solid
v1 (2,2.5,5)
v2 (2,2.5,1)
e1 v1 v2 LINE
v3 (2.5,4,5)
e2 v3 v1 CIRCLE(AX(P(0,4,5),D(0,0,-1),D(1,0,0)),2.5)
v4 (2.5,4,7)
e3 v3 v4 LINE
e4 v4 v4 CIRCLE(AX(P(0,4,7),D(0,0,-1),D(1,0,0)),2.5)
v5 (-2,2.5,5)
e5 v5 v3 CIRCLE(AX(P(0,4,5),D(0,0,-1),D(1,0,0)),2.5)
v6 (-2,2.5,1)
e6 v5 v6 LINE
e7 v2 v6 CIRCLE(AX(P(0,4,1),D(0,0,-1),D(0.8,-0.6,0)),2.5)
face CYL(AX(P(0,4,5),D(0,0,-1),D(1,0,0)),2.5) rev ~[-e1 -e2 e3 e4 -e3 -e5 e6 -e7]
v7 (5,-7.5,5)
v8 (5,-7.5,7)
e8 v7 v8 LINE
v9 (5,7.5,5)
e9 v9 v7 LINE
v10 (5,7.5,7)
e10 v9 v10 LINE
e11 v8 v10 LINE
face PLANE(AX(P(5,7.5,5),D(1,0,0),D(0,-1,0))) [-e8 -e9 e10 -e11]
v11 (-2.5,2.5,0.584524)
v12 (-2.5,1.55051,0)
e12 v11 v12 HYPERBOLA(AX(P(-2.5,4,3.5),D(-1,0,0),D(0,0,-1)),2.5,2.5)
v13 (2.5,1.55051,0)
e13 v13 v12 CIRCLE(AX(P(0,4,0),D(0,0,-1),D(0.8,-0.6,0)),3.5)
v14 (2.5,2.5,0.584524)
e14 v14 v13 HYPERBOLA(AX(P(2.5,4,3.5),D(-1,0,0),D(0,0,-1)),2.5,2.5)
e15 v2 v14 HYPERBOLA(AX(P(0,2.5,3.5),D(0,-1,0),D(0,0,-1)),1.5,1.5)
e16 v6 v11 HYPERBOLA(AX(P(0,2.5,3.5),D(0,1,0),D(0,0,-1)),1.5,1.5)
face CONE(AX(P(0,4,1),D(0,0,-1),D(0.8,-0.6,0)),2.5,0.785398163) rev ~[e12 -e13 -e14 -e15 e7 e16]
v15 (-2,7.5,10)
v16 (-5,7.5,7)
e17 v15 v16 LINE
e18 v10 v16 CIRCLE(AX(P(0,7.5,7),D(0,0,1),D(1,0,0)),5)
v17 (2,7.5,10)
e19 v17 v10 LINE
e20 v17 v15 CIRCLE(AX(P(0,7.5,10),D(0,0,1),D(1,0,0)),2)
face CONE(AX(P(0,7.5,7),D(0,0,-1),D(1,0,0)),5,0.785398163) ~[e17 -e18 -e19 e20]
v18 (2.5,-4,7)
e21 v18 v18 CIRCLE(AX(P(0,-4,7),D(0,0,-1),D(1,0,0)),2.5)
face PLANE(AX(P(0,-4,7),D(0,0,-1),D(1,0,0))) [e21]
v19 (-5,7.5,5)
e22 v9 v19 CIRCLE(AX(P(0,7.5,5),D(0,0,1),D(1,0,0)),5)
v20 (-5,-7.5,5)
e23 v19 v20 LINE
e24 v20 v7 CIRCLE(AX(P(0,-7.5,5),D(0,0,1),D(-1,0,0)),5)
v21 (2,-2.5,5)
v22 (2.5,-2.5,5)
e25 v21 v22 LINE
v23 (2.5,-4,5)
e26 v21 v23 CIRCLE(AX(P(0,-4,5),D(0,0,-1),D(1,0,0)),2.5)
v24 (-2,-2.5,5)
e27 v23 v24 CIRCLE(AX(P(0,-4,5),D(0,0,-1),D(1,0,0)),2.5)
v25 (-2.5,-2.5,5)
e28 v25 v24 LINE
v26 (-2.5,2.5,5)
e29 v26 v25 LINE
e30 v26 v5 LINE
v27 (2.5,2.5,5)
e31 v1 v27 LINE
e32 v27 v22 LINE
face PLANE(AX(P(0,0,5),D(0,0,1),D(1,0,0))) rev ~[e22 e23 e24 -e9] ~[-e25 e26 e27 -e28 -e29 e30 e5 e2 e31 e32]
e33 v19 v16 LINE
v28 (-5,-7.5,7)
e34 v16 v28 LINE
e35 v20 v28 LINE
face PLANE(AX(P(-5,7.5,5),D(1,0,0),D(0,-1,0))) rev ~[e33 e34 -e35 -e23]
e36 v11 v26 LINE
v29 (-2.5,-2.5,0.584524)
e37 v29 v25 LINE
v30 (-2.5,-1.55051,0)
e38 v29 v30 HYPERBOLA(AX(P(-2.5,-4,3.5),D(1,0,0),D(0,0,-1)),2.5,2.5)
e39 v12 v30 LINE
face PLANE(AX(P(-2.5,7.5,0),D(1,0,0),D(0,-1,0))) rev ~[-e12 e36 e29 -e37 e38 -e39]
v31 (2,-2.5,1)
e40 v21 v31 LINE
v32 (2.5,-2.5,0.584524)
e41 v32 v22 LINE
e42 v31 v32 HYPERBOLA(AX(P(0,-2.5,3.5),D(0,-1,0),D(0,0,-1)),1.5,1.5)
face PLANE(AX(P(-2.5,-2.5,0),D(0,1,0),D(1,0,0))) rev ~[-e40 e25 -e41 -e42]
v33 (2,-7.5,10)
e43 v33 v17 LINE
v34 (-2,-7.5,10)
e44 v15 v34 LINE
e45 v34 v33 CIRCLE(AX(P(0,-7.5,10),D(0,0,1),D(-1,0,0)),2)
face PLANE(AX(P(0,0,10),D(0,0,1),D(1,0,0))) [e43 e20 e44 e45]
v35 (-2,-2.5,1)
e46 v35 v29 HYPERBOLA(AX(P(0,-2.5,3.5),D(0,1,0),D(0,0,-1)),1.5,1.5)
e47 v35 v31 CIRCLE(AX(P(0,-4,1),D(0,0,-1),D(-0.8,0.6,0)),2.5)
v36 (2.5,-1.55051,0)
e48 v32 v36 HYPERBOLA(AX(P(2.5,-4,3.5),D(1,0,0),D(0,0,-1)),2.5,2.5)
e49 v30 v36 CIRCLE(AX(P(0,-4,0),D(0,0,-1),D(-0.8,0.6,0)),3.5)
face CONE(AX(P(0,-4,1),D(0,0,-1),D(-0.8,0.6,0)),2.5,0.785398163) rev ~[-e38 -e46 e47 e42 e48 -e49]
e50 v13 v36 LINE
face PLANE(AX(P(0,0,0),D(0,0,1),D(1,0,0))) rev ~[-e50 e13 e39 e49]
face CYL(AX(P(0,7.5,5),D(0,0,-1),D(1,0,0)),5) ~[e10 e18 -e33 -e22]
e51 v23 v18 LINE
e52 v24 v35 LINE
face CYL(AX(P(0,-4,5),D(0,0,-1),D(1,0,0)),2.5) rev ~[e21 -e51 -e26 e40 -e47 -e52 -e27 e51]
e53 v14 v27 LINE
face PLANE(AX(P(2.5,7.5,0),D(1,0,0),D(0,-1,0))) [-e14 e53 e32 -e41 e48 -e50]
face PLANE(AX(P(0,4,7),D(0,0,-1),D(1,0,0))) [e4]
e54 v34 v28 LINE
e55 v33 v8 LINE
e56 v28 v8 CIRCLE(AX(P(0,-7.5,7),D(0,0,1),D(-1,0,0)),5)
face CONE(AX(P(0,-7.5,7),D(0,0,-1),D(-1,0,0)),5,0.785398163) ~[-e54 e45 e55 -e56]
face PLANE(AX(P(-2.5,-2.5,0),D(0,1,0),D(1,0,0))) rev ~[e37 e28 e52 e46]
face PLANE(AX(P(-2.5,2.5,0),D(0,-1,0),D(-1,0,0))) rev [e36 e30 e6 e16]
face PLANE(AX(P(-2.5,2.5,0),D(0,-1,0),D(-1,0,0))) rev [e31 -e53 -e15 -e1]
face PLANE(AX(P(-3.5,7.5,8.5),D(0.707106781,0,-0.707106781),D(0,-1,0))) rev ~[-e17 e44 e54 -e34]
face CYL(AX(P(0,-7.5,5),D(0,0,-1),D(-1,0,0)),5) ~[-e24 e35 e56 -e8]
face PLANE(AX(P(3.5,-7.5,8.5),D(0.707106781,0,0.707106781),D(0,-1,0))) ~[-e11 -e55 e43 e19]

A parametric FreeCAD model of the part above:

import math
import FreeCAD as App
import Part
import Sketcher
Q = App.Units.Quantity


def edges_at(feature, points):
    """Names of the edges that pass closest to the given points."""
    edges = feature.Shape.Edges
    near = lambda p: min(range(len(edges)), key=lambda i: edges[i].distToShape(Part.Vertex(*p))[0])
    return sorted({f"Edge{near(p) + 1}" for p in points})


def add_polygon(sketch, points):
    """Adds a closed chain of lines whose ends are joined by coincident constraints."""
    first, n = sketch.GeometryCount, len(points)
    for a, b in zip(points, points[1:] + points[:1]):
        sketch.addGeometry(Part.LineSegment(App.Vector(*a, 0), App.Vector(*b, 0)), False)
    for i in range(n):
        sketch.addConstraint(Sketcher.Constraint("Coincident", first + i, 2, first + (i + 1) % n, 1))

doc = App.newDocument("Part")
params = doc.addObject("Spreadsheet::Sheet", "Params")
for row, (alias, value) in enumerate([
    ("sketch1_radius", "2.5 mm"),
    ("sketch1_height", "15 mm"),
    ("pad1_length", "5 mm"),
    ("sketch2_radius", "5 mm"),
    ("sketch2_height", "15 mm"),
    ("pad2_length", "5 mm"),
    ("sketch3_radius", "2.5 mm"),
    ("sketch3_height", "3.5 mm"),
    ("pocket1_length", "5 mm"),
    ("sketch4_width", "5 mm"),
    ("sketch4_height", "1.5 mm"),
    ("pocket2_length", "5 mm"),
    ("sketch5_diameter", "5 mm"),
    ("pocket3_length", "2 mm"),
    ("chamfer_size", "3 mm"),
    ("chamfer2_size", "1 mm"),
], start=1):
    params.set(f"A{row}", alias)
    params.set(f"B{row}", "=" + value)
    params.setAlias(f"B{row}", alias)

body = doc.addObject("PartDesign::Body", "Body")

# Sketch on XY plane
sketch1 = body.newObject("Sketcher::SketchObject", "Sketch")
sketch1.AttachmentSupport = (doc.getObject("XY_Plane"), [""])
sketch1.MapMode = "FlatFace"
sketch1.addGeometry(Part.ArcOfCircle(Part.Circle(App.Vector(0, 7.5, 0), App.Vector(0, 0, 1), 2.5), math.radians(0), math.radians(180)), False)
sketch1.addGeometry(Part.LineSegment(App.Vector(-2.5, 7.5, 0), App.Vector(-2.5, -7.5, 0)), False)
sketch1.addGeometry(Part.ArcOfCircle(Part.Circle(App.Vector(0, -7.5, 0), App.Vector(0, 0, 1), 2.5), math.radians(180), math.radians(360)), False)
sketch1.addGeometry(Part.LineSegment(App.Vector(2.5, -7.5, 0), App.Vector(2.5, 7.5, 0)), False)
sketch1.addConstraint(Sketcher.Constraint("Tangent", 0, 2, 1, 1))
sketch1.addConstraint(Sketcher.Constraint("Tangent", 1, 2, 2, 1))
sketch1.addConstraint(Sketcher.Constraint("Tangent", 2, 2, 3, 1))
sketch1.addConstraint(Sketcher.Constraint("Tangent", 3, 2, 0, 1))
sketch1.addConstraint(Sketcher.Constraint("Vertical", 1))
sketch1.addConstraint(Sketcher.Constraint("Vertical", 3))
sketch1.addConstraint(Sketcher.Constraint("Symmetric", 0, 3, 2, 3, -1, 1))
sketch1.addConstraint(Sketcher.Constraint("Radius", 0, Q("2.5 mm")))
sketch1.addConstraint(Sketcher.Constraint("DistanceY", 1, 2, 1, 1, Q("15 mm")))
sketch1.setExpression("Constraints[7]", "Params.sketch1_radius")
sketch1.setExpression("Constraints[8]", "Params.sketch1_height")
pad1 = body.newObject("PartDesign::Pad", "Pad")
pad1.Profile = sketch1
pad1.setExpression("Length", "Params.pad1_length")

# Sketch on XY plane
sketch2 = body.newObject("Sketcher::SketchObject", "Sketch001")
sketch2.AttachmentSupport = (doc.getObject("XY_Plane"), [""])
sketch2.MapMode = "FlatFace"
sketch2.AttachmentOffset = App.Placement(App.Vector(0, 0, 5), App.Rotation())
sketch2.addGeometry(Part.ArcOfCircle(Part.Circle(App.Vector(0, 7.5, 0), App.Vector(0, 0, 1), 5), math.radians(0), math.radians(180)), False)
sketch2.addGeometry(Part.LineSegment(App.Vector(-5, 7.5, 0), App.Vector(-5, -7.5, 0)), False)
sketch2.addGeometry(Part.ArcOfCircle(Part.Circle(App.Vector(0, -7.5, 0), App.Vector(0, 0, 1), 5), math.radians(180), math.radians(360)), False)
sketch2.addGeometry(Part.LineSegment(App.Vector(5, -7.5, 0), App.Vector(5, 7.5, 0)), False)
sketch2.addConstraint(Sketcher.Constraint("Tangent", 0, 2, 1, 1))
sketch2.addConstraint(Sketcher.Constraint("Tangent", 1, 2, 2, 1))
sketch2.addConstraint(Sketcher.Constraint("Tangent", 2, 2, 3, 1))
sketch2.addConstraint(Sketcher.Constraint("Tangent", 3, 2, 0, 1))
sketch2.addConstraint(Sketcher.Constraint("Vertical", 1))
sketch2.addConstraint(Sketcher.Constraint("Vertical", 3))
sketch2.addConstraint(Sketcher.Constraint("Symmetric", 0, 3, 2, 3, -1, 1))
sketch2.addConstraint(Sketcher.Constraint("Radius", 0, Q("5 mm")))
sketch2.addConstraint(Sketcher.Constraint("DistanceY", 1, 2, 1, 1, Q("15 mm")))
sketch2.setExpression("Constraints[7]", "Params.sketch2_radius")
sketch2.setExpression("Constraints[8]", "Params.sketch2_height")
pad2 = body.newObject("PartDesign::Pad", "Pad001")
pad2.Profile = sketch2
pad2.setExpression("Length", "Params.pad2_length")

# Sketch on XY plane
sketch3 = body.newObject("Sketcher::SketchObject", "Sketch002")
sketch3.AttachmentSupport = (doc.getObject("XY_Plane"), [""])
sketch3.MapMode = "FlatFace"
sketch3.addGeometry(Part.ArcOfCircle(Part.Circle(App.Vector(0, -7.5, 0), App.Vector(0, 0, 1), 2.5), math.radians(180), math.radians(360)), False)
sketch3.addGeometry(Part.LineSegment(App.Vector(-2.5, -7.5, 0), App.Vector(-2.5, -4, 0)), False)
sketch3.addGeometry(Part.ArcOfCircle(Part.Circle(App.Vector(0, -4, 0), App.Vector(0, 0, 1), 2.5), math.radians(0), math.radians(180)), False)
sketch3.addGeometry(Part.LineSegment(App.Vector(2.5, -4, 0), App.Vector(2.5, -7.5, 0)), False)
sketch3.addGeometry(Part.ArcOfCircle(Part.Circle(App.Vector(0, 7.5, 0), App.Vector(0, 0, 1), 2.5), math.radians(0), math.radians(180)), False)
sketch3.addGeometry(Part.LineSegment(App.Vector(2.5, 7.5, 0), App.Vector(2.5, 4, 0)), False)
sketch3.addGeometry(Part.ArcOfCircle(Part.Circle(App.Vector(0, 4, 0), App.Vector(0, 0, 1), 2.5), math.radians(180), math.radians(360)), False)
sketch3.addGeometry(Part.LineSegment(App.Vector(-2.5, 4, 0), App.Vector(-2.5, 7.5, 0)), False)
sketch3.addConstraint(Sketcher.Constraint("Tangent", 0, 1, 1, 1))
sketch3.addConstraint(Sketcher.Constraint("Tangent", 1, 2, 2, 2))
sketch3.addConstraint(Sketcher.Constraint("Tangent", 2, 1, 3, 1))
sketch3.addConstraint(Sketcher.Constraint("Tangent", 3, 2, 0, 2))
sketch3.addConstraint(Sketcher.Constraint("Tangent", 4, 1, 5, 1))
sketch3.addConstraint(Sketcher.Constraint("Tangent", 5, 2, 6, 2))
sketch3.addConstraint(Sketcher.Constraint("Tangent", 6, 1, 7, 1))
sketch3.addConstraint(Sketcher.Constraint("Tangent", 7, 2, 4, 2))
sketch3.addConstraint(Sketcher.Constraint("Vertical", 1))
sketch3.addConstraint(Sketcher.Constraint("Vertical", 3))
sketch3.addConstraint(Sketcher.Constraint("Vertical", 5))
sketch3.addConstraint(Sketcher.Constraint("Vertical", 7))
sketch3.addConstraint(Sketcher.Constraint("Equal", 2, 4))
sketch3.addConstraint(Sketcher.Constraint("Symmetric", 0, 3, 4, 3, -1, 1))
sketch3.addConstraint(Sketcher.Constraint("Symmetric", 2, 3, 6, 3, -1))
sketch3.addConstraint(Sketcher.Constraint("Radius", 0, Q("2.5 mm")))
sketch3.addConstraint(Sketcher.Constraint("DistanceY", 1, 1, 1, 2, Q("3.5 mm")))
sketch3.addConstraint(Sketcher.Constraint("DistanceY", 2, 3, -1, 1, Q("4 mm")))
sketch3.setExpression("Constraints[15]", "Params.sketch3_radius")
sketch3.setExpression("Constraints[16]", "Params.sketch3_height")
pocket1 = body.newObject("PartDesign::Pocket", "Pocket")
pocket1.Profile = sketch3
pocket1.setExpression("Length", "Params.pocket1_length")
pocket1.Reversed = True

# Sketch on XY plane
sketch4 = body.newObject("Sketcher::SketchObject", "Sketch003")
sketch4.AttachmentSupport = (doc.getObject("XY_Plane"), [""])
sketch4.MapMode = "FlatFace"
add_polygon(sketch4, [(-2.5, -4), (-2.5, -2.5), (2.5, -2.5), (2.5, -4)])  # lines 0-3
sketch4.addConstraint(Sketcher.Constraint("Vertical", 0))
sketch4.addConstraint(Sketcher.Constraint("Horizontal", 1))
sketch4.addConstraint(Sketcher.Constraint("Vertical", 2))
sketch4.addConstraint(Sketcher.Constraint("Horizontal", 3))
sketch4.addConstraint(Sketcher.Constraint("DistanceX", 1, 1, 1, 2, Q("5 mm")))
sketch4.addConstraint(Sketcher.Constraint("DistanceY", 0, 1, 0, 2, Q("1.5 mm")))
sketch4.addConstraint(Sketcher.Constraint("DistanceY", 2, 2, -1, 1, Q("4 mm")))
sketch4.addConstraint(Sketcher.Constraint("DistanceX", 0, 2, -1, 1, Q("2.5 mm")))
sketch4.setExpression("Constraints[8]", "Params.sketch4_width")
sketch4.setExpression("Constraints[9]", "Params.sketch4_height")
pocket2 = body.newObject("PartDesign::Pocket", "Pocket001")
pocket2.Profile = sketch4
pocket2.setExpression("Length", "Params.pocket2_length")
pocket2.Reversed = True
doc.recompute()

mirrored = body.newObject("PartDesign::Mirrored", "Mirrored")
mirrored.Originals = [pocket2]
mirrored.MirrorPlane = (doc.getObject("XZ_Plane"), [""])
body.Tip = mirrored

# Sketch on XY plane
sketch5 = body.newObject("Sketcher::SketchObject", "Sketch004")
sketch5.AttachmentSupport = (doc.getObject("XY_Plane"), [""])
sketch5.MapMode = "FlatFace"
sketch5.AttachmentOffset = App.Placement(App.Vector(0, 0, 5), App.Rotation())
sketch5.addGeometry(Part.Circle(App.Vector(0, 4, 0), App.Vector(0, 0, 1), 2.5), False)
sketch5.addGeometry(Part.Circle(App.Vector(0, -4, 0), App.Vector(0, 0, 1), 2.5), False)
sketch5.addConstraint(Sketcher.Constraint("Equal", 0, 1))
sketch5.addConstraint(Sketcher.Constraint("Symmetric", 0, 3, 1, 3, -1, 1))
sketch5.addConstraint(Sketcher.Constraint("PointOnObject", 0, 3, -2))
sketch5.addConstraint(Sketcher.Constraint("Diameter", 0, Q("5 mm")))
sketch5.addConstraint(Sketcher.Constraint("DistanceY", -1, 1, 0, 3, Q("4 mm")))
sketch5.setExpression("Constraints[3]", "Params.sketch5_diameter")
pocket3 = body.newObject("PartDesign::Pocket", "Pocket002")
pocket3.Profile = sketch5
pocket3.setExpression("Length", "Params.pocket3_length")
pocket3.Reversed = True
doc.recompute()

chamfer = body.newObject("PartDesign::Chamfer", "Chamfer")
chamfer.Base = (pocket3, edges_at(pocket3, [(0, -12.5, 10)]))
chamfer.setExpression("Size", "Params.chamfer_size")
doc.recompute()

chamfer2 = body.newObject("PartDesign::Chamfer", "Chamfer001")
chamfer2.Base = (chamfer, edges_at(chamfer, [(0, -1.5, 0), (0, 1.5, 0)]))
chamfer2.setExpression("Size", "Params.chamfer2_size")

doc.recompute()
